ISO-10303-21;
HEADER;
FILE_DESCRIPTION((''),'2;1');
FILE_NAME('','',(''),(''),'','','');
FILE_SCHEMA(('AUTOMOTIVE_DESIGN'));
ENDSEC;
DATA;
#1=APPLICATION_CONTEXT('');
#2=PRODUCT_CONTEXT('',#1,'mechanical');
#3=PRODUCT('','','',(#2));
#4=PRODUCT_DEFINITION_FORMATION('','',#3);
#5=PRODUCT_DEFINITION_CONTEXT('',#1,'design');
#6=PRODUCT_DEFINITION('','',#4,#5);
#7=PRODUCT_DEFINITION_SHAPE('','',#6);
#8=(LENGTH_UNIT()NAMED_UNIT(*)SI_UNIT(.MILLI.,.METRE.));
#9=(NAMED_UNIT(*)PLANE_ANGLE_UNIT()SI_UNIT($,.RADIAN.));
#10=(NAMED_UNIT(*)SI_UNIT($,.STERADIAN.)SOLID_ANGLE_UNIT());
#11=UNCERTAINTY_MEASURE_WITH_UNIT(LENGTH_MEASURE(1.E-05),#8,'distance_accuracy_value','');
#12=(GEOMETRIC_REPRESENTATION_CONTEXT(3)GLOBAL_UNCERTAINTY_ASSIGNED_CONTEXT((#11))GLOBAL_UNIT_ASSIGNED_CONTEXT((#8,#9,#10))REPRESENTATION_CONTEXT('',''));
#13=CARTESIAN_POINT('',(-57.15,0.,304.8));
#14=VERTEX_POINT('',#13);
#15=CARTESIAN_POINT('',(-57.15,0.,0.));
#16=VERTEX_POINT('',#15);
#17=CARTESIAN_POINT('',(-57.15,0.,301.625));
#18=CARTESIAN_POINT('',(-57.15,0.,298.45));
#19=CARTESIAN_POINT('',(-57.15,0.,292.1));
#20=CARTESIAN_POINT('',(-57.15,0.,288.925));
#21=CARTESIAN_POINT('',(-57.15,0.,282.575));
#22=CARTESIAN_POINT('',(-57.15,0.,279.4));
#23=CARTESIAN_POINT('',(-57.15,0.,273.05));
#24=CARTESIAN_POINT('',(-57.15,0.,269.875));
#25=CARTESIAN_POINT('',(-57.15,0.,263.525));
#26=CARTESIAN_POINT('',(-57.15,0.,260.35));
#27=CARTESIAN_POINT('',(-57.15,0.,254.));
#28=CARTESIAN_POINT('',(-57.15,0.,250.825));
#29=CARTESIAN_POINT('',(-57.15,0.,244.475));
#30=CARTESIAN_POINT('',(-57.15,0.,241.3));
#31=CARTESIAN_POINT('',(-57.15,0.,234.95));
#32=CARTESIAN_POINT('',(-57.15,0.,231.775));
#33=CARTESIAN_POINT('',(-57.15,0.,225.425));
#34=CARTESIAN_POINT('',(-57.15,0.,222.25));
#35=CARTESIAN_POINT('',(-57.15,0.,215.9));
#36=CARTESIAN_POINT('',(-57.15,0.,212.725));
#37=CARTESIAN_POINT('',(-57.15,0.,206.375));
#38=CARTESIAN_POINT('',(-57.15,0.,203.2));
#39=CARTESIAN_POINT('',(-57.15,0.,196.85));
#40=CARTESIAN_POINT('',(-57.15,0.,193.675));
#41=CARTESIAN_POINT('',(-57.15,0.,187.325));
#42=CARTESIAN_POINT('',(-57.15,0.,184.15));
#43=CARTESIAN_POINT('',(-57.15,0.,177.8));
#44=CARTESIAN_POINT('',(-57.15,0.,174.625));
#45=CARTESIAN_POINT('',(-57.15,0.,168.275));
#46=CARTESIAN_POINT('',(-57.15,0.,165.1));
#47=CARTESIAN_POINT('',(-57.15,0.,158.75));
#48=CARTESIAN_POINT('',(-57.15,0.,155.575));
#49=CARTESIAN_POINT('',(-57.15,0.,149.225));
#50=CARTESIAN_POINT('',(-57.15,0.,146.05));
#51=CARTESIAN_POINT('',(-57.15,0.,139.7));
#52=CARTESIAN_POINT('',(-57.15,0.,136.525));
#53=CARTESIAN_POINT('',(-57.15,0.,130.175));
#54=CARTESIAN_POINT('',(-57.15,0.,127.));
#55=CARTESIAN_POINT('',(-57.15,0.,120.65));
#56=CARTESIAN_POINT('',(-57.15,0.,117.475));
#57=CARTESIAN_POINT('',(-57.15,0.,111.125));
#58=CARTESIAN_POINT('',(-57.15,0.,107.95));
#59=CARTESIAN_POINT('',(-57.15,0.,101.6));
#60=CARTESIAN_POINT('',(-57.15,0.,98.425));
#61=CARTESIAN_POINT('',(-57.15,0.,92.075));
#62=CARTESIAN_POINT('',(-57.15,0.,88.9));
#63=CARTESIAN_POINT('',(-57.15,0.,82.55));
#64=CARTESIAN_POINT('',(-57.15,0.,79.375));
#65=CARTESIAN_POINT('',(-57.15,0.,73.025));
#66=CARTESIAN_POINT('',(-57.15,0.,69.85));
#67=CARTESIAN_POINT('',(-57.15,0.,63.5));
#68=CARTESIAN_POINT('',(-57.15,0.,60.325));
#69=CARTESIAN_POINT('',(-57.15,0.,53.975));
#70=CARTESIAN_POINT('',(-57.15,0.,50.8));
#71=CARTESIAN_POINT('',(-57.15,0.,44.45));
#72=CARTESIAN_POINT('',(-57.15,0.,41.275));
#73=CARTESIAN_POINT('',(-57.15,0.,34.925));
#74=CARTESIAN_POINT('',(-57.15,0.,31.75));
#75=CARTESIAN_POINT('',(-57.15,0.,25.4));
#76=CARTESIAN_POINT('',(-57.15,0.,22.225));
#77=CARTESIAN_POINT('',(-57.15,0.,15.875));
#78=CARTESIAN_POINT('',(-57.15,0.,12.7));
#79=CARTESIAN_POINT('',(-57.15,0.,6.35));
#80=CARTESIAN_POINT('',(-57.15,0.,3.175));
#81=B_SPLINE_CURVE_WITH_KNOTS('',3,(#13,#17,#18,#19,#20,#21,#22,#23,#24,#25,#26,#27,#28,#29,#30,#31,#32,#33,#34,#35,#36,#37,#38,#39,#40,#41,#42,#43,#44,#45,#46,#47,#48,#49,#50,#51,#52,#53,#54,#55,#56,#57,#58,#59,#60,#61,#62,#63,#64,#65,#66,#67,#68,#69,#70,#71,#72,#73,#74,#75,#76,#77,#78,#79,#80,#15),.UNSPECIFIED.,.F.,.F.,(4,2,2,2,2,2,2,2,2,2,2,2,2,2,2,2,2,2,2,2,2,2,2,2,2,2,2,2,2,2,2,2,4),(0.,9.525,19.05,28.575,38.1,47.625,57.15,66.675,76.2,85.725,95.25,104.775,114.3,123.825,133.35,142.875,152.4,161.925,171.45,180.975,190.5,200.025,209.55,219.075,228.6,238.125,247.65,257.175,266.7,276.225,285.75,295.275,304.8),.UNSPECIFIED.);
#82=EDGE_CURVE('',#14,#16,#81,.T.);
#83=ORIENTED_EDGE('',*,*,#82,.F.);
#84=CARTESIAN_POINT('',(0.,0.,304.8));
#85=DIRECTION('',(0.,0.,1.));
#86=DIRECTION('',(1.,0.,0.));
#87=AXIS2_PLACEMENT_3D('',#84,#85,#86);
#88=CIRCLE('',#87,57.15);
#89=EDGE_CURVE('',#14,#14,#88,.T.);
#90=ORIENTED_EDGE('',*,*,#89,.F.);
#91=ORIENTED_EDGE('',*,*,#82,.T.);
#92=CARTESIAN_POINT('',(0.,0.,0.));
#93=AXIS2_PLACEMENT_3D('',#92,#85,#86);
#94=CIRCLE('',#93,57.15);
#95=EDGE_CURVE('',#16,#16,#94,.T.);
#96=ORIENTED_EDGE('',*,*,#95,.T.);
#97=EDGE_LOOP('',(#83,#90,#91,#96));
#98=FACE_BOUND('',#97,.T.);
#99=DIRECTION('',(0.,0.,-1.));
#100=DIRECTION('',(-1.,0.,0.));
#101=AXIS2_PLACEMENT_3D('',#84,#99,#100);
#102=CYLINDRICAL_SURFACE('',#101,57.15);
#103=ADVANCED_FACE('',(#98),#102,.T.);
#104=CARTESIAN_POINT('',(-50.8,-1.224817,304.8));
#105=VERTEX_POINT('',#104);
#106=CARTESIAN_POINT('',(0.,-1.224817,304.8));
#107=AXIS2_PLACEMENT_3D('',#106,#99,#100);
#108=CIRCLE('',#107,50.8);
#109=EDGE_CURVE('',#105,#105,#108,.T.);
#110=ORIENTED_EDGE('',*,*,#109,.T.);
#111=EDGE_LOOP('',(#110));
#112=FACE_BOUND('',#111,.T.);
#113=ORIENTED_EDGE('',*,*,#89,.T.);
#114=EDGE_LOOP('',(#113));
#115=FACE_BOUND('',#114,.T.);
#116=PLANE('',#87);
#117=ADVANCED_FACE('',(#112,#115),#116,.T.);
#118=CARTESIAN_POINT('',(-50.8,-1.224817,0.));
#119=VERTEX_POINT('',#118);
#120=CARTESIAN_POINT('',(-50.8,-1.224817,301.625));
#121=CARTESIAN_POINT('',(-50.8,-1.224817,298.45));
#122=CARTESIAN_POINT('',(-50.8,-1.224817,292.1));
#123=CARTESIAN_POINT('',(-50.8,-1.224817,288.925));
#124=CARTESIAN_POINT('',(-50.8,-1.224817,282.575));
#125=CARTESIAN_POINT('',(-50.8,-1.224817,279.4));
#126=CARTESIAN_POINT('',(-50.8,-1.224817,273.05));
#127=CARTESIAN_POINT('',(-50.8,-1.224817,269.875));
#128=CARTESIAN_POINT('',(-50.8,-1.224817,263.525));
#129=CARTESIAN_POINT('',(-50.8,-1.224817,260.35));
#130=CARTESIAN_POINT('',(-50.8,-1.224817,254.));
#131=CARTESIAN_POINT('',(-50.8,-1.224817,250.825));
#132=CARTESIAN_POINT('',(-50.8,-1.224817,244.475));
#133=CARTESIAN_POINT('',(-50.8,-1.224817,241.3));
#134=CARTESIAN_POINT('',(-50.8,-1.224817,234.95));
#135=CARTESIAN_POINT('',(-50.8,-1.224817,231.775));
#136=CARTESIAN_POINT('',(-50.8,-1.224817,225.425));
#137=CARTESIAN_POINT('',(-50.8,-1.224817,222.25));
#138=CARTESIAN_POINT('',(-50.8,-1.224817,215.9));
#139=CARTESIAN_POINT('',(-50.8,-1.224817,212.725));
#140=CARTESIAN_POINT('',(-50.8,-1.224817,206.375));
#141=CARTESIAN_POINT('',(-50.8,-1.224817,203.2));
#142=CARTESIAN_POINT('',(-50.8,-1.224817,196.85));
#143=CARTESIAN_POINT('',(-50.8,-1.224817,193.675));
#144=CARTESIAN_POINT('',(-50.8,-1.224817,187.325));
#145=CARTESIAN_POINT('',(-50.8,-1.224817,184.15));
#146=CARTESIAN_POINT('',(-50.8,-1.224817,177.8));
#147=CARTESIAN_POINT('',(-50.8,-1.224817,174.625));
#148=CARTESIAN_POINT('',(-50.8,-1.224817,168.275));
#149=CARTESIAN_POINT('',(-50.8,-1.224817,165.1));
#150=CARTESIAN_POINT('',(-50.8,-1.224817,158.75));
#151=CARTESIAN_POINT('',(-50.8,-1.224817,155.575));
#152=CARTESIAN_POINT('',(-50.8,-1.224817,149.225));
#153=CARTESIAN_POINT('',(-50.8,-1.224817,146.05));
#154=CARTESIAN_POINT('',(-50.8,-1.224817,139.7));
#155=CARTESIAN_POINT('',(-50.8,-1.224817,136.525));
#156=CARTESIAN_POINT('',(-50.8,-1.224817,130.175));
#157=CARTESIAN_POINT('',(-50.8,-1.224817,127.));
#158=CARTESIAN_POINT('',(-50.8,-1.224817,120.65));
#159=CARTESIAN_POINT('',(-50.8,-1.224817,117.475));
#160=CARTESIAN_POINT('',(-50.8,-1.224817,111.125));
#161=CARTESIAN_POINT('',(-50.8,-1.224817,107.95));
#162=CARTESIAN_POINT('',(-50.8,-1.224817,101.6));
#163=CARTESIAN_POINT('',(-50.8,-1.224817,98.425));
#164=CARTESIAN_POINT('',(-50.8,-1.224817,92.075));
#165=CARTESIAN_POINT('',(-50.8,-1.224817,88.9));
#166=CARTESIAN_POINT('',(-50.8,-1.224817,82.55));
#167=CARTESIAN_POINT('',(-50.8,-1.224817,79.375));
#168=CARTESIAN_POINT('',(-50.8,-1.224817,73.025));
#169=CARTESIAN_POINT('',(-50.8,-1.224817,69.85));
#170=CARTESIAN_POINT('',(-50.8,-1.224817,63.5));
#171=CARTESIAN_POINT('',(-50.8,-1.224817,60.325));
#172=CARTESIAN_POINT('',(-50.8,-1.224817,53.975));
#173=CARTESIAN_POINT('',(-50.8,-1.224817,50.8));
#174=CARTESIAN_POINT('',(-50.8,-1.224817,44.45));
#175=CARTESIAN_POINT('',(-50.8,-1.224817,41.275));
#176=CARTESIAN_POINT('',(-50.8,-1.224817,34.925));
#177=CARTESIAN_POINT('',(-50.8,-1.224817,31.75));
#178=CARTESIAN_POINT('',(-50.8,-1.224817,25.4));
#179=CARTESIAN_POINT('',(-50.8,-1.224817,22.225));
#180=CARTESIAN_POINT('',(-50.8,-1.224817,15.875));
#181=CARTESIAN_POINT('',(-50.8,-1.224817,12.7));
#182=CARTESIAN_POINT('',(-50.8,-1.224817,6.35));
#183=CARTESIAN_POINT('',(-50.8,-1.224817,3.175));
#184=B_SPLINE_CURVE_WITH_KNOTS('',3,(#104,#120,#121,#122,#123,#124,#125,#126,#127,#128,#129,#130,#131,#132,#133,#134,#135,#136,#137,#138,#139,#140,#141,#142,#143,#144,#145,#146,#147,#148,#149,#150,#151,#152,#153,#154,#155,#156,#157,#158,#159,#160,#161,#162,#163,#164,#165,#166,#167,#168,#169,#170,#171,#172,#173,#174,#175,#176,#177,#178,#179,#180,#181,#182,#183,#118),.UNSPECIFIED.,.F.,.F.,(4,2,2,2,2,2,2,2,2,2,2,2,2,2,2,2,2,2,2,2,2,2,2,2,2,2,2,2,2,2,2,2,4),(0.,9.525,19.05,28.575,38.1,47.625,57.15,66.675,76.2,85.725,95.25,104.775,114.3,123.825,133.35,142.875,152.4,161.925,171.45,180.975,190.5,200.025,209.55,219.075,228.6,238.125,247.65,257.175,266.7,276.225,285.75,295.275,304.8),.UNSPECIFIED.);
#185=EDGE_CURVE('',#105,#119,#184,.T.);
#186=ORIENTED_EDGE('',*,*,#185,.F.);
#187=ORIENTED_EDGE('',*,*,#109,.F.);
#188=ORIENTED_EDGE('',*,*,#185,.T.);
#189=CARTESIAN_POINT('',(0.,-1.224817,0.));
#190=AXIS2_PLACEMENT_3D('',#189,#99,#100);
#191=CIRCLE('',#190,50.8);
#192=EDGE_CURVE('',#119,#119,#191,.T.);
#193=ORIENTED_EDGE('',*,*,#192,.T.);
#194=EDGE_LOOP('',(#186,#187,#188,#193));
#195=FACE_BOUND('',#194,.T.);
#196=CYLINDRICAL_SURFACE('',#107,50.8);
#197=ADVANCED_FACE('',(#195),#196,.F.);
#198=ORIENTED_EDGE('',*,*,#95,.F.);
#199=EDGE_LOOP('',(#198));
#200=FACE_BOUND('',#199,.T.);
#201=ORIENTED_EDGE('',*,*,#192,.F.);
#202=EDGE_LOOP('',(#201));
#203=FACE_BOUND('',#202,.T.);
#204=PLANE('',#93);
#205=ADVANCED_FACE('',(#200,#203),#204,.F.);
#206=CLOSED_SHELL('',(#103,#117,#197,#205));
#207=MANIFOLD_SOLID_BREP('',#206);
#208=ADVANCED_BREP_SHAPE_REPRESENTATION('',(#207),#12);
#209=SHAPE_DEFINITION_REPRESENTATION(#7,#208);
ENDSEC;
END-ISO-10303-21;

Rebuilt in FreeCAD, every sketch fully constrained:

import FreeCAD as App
import Part
import Sketcher

V = App.Vector
Q = App.Units.Quantity

doc = App.newDocument("Part")
body = doc.addObject("PartDesign::Body", "Body")

# Sketch on XY plane
sketch1 = body.newObject("Sketcher::SketchObject", "Sketch")
sketch1.AttachmentSupport = (doc.getObject("XY_Plane"), [""])
sketch1.MapMode = "FlatFace"
sketch1.addGeometry(Part.Circle(V(0, 0, 0), V(0, 0, 1), 57), False)
sketch1.addConstraint([
    Sketcher.Constraint("Coincident", 0, 3, -1, 1),
    Sketcher.Constraint("Diameter", 0, Q("4.5 in")),
])
pad1 = body.newObject("PartDesign::Pad", "Pad")
pad1.Profile = sketch1
pad1.Length = Q("12 in")

# Sketch on XY plane
sketch2 = body.newObject("Sketcher::SketchObject", "Sketch001")
sketch2.AttachmentSupport = (doc.getObject("XY_Plane"), [""])
sketch2.MapMode = "FlatFace"
sketch2.addGeometry(Part.Circle(V(0, -1, 0), V(0, 0, 1), 51), False)
sketch2.addConstraint([
    Sketcher.Constraint("PointOnObject", 0, 3, -2),
    Sketcher.Constraint("Diameter", 0, Q("4 in")),
    Sketcher.Constraint("DistanceY", 0, 3, -1, 1, 1.224817),
])
pocket1 = body.newObject("PartDesign::Pocket", "Pocket")
pocket1.Profile = sketch2
pocket1.Type = "ThroughAll"
pocket1.Midplane = True

doc.recompute()
